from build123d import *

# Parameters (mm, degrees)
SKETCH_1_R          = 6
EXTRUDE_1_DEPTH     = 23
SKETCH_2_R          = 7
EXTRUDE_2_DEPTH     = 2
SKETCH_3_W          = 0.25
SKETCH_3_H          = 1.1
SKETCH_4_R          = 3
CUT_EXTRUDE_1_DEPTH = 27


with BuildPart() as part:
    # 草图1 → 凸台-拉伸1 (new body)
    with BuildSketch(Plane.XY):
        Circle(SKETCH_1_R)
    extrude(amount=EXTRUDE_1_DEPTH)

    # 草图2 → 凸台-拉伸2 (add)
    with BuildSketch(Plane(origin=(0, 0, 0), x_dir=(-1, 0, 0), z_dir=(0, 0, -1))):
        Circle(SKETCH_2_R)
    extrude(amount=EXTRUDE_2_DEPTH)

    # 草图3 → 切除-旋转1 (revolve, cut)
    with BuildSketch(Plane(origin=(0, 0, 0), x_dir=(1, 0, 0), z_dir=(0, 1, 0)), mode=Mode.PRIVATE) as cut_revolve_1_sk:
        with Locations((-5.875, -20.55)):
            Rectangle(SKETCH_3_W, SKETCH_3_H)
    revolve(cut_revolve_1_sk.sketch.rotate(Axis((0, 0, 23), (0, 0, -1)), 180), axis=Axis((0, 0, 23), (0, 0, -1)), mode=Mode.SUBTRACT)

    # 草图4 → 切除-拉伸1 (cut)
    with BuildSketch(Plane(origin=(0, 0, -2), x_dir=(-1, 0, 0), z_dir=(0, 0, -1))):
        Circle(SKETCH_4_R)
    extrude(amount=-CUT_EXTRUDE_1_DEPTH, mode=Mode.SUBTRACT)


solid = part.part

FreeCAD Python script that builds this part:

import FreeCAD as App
import Part
import Sketcher
from FreeCAD import Vector


def add_polygon(sketch, points):
    """Adds a closed chain of lines whose ends are joined by coincident constraints."""
    first, n = sketch.GeometryCount, len(points)
    for a, b in zip(points, points[1:] + points[:1]):
        sketch.addGeometry(Part.LineSegment(App.Vector(*a, 0), App.Vector(*b, 0)), False)
    for i in range(n):
        sketch.addConstraint(Sketcher.Constraint("Coincident", first + i, 2, first + (i + 1) % n, 1))

doc = App.newDocument("Part")
body = doc.addObject("PartDesign::Body", "Body")

# Sketch on XY plane
sketch1 = doc.addObject("Sketcher::SketchObject", "Sketch")
body.addObject(sketch1)
sketch1.AttachmentSupport = (doc.XY_Plane, [""])
sketch1.MapMode = "FlatFace"
sketch1.addGeometry(Part.Circle(Vector(0, 0, 0), Vector(0, 0, 1), 6), False)
sketch1.addConstraint([
    Sketcher.Constraint("Coincident", 0, 3, -1, 1),
    Sketcher.Constraint("Diameter", 0, 12.0),
])
pad1 = doc.addObject("PartDesign::Pad", "Pad")
body.addObject(pad1)
pad1.Profile = sketch1
pad1.Length = 23

# Sketch on XY plane
sketch2 = doc.addObject("Sketcher::SketchObject", "Sketch001")
body.addObject(sketch2)
sketch2.AttachmentSupport = (doc.XY_Plane, [""])
sketch2.MapMode = "FlatFace"
sketch2.addGeometry(Part.Circle(Vector(0, 0, 0), Vector(0, 0, 1), 7), False)
sketch2.addConstraint([
    Sketcher.Constraint("Coincident", 0, 3, -1, 1),
    Sketcher.Constraint("Diameter", 0, 14.0),
])
pad2 = doc.addObject("PartDesign::Pad", "Pad001")
body.addObject(pad2)
pad2.Profile = sketch2
pad2.Length = 2
pad2.Reversed = True

# Sketch on XZ plane
sketch3 = doc.addObject("Sketcher::SketchObject", "Sketch002")
body.addObject(sketch3)
sketch3.AttachmentSupport = (doc.XZ_Plane, [""])
sketch3.MapMode = "FlatFace"
add_polygon(sketch3, [(-6, 20), (-6, 21.1), (-5.75, 21.1), (-5.75, 20)])  # lines 0-3
sketch3.addConstraint([
    Sketcher.Constraint("Vertical", 0),
    Sketcher.Constraint("Horizontal", 1),
    Sketcher.Constraint("Vertical", 2),
    Sketcher.Constraint("Horizontal", 3),
    Sketcher.Constraint("DistanceY", 0, 1, 0, 2, 1.1),
    Sketcher.Constraint("DistanceX", 0, 2, -1, 1, 6.0),
    Sketcher.Constraint("DistanceY", -1, 1, 2, 2, 20.0),
    Sketcher.Constraint("DistanceX", 1, 1, 1, 2, 0.25),
])
groove = doc.addObject("PartDesign::Groove", "Groove")
body.addObject(groove)
groove.Profile = sketch3
groove.ReferenceAxis = (sketch3, ["V_Axis"])
groove.Angle = 360

# Sketch on XY plane
sketch4 = doc.addObject("Sketcher::SketchObject", "Sketch003")
body.addObject(sketch4)
sketch4.AttachmentSupport = (doc.XY_Plane, [""])
sketch4.MapMode = "FlatFace"
sketch4.AttachmentOffset = App.Placement(Vector(0, 0, -2), App.Rotation())
sketch4.addGeometry(Part.Circle(Vector(0, 0, 0), Vector(0, 0, 1), 3), False)
sketch4.addConstraint([
    Sketcher.Constraint("Coincident", 0, 3, -1, 1),
    Sketcher.Constraint("Diameter", 0, 6.0),
])
pocket1 = doc.addObject("PartDesign::Pocket", "Pocket")
body.addObject(pocket1)
pocket1.Profile = sketch4
pocket1.Length = 27
pocket1.Reversed = True

doc.recompute()
